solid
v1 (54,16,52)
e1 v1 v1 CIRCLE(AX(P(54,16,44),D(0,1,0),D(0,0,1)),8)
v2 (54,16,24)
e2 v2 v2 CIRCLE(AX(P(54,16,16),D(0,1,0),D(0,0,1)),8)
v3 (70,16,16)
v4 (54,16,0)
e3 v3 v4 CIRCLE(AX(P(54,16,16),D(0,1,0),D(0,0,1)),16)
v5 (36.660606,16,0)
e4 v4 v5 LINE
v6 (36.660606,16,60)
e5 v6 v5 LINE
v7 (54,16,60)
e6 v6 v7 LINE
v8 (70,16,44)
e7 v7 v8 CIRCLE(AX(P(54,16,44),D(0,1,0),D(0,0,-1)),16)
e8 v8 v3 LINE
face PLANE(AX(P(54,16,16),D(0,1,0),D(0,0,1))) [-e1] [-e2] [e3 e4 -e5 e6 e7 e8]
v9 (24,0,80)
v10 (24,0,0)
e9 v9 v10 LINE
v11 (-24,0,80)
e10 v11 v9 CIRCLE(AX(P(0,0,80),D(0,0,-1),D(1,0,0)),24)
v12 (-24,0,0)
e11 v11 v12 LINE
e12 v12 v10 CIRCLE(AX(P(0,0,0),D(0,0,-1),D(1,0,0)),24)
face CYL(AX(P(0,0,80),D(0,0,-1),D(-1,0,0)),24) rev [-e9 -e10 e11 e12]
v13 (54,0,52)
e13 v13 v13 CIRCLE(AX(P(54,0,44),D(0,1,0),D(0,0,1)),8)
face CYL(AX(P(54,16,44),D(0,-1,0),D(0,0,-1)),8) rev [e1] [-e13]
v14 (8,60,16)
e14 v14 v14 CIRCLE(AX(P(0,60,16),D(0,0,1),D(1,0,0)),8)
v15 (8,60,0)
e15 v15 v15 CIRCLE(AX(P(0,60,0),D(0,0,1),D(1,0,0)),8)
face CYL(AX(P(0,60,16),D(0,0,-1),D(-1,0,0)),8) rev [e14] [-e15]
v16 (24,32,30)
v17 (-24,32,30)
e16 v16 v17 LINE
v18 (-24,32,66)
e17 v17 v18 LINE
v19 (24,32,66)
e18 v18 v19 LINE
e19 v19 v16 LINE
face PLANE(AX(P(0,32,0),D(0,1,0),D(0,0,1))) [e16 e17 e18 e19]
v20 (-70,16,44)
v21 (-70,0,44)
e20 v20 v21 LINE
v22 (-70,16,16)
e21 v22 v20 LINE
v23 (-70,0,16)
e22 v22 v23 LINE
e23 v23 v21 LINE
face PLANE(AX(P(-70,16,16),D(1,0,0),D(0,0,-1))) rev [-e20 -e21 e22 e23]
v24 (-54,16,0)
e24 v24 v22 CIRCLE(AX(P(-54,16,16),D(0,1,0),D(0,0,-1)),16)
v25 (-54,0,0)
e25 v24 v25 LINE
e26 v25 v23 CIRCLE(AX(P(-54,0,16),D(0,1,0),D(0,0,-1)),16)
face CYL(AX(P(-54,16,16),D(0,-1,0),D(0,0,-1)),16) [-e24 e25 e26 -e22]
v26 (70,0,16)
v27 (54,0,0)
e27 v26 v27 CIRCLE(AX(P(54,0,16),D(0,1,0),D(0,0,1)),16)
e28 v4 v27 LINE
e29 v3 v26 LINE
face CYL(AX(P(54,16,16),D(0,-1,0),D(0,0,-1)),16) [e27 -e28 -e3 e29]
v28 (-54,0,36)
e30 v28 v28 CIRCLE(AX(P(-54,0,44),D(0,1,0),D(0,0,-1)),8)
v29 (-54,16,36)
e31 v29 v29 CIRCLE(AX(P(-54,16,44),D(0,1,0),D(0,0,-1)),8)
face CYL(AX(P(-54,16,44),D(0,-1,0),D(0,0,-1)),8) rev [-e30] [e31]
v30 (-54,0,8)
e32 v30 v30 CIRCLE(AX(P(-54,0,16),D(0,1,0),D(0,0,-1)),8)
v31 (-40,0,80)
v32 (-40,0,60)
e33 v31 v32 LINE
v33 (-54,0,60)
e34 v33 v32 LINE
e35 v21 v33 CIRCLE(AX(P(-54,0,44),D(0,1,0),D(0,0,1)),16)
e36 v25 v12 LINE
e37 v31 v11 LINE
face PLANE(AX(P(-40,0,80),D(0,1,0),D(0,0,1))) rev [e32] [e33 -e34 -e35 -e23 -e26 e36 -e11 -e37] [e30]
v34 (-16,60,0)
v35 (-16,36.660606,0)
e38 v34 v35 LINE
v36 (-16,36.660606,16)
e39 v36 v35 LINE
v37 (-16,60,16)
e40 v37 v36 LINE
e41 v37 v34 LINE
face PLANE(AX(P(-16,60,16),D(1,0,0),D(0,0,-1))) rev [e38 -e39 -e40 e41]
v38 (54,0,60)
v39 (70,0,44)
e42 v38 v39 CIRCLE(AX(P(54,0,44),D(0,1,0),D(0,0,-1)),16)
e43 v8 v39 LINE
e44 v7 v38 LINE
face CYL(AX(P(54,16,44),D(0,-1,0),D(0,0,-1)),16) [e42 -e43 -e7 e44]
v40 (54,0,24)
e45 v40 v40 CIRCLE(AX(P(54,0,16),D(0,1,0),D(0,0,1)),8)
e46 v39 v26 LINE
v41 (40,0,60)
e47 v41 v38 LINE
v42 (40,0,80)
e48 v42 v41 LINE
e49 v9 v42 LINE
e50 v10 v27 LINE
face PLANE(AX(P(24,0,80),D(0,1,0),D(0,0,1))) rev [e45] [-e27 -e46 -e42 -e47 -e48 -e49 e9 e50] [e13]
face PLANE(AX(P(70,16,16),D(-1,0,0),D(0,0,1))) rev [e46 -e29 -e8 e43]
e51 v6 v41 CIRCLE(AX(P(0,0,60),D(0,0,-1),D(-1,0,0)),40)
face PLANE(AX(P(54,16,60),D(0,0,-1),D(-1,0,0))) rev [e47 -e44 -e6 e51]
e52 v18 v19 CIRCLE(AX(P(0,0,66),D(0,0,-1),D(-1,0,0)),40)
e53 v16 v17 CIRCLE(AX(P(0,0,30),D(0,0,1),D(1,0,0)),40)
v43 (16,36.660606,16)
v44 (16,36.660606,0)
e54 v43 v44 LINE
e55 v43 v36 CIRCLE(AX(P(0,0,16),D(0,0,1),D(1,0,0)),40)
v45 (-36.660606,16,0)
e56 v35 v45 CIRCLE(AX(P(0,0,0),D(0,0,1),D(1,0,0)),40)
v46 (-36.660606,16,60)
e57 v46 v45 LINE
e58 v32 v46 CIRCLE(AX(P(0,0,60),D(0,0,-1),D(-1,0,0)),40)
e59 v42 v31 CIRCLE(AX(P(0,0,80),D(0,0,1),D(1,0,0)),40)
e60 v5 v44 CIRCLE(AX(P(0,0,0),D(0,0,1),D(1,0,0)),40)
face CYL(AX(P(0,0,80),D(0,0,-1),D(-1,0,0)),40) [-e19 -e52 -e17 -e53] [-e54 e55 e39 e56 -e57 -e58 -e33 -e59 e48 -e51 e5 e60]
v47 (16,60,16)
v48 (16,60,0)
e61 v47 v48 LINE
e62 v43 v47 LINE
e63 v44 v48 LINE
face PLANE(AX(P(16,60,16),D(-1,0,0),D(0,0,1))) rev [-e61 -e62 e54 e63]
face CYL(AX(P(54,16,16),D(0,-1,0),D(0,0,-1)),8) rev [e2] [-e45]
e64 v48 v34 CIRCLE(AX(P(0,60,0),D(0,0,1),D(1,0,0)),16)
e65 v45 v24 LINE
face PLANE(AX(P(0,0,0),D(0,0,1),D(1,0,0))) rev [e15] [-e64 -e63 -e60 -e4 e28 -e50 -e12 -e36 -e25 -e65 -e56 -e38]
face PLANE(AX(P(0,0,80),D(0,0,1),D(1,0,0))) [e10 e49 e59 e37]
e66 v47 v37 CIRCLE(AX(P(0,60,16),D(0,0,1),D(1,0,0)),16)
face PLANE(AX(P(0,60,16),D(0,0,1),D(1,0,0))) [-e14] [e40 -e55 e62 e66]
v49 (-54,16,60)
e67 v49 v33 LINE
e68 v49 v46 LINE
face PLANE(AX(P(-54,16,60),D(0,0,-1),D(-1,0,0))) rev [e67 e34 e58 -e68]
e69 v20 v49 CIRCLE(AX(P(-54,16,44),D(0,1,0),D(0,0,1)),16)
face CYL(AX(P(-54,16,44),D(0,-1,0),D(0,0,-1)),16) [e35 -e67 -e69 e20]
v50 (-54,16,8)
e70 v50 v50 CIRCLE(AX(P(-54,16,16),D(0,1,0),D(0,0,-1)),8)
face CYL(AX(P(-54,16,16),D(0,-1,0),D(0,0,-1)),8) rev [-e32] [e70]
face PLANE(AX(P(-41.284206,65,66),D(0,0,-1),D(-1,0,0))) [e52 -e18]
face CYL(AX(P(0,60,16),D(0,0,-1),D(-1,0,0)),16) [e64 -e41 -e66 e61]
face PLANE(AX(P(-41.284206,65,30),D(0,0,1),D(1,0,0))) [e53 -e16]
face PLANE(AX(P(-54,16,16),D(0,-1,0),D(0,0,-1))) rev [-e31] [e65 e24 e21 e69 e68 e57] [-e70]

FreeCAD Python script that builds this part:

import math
import FreeCAD as App
import Part
import Sketcher
Q = App.Units.Quantity

doc = App.newDocument("Part")
body = doc.addObject("PartDesign::Body", "Body")

# Sketch on XY plane
sketch1 = body.newObject("Sketcher::SketchObject", "Sketch")
sketch1.AttachmentSupport = (doc.getObject("XY_Plane"), [""])
sketch1.MapMode = "FlatFace"
sketch1.addGeometry(Part.LineSegment(App.Vector(-40, 0, 0), App.Vector(-24, 0, 0)), False)
sketch1.addGeometry(Part.ArcOfCircle(Part.Circle(App.Vector(0, 0, 0), App.Vector(0, 0, 1), 24), math.radians(0), math.radians(180)), False)
sketch1.addGeometry(Part.LineSegment(App.Vector(24, 0, 0), App.Vector(40, 0, 0)), False)
sketch1.addGeometry(Part.ArcOfCircle(Part.Circle(App.Vector(0, 0, 0), App.Vector(0, 0, 1), 40), math.radians(0), math.radians(180)), False)
sketch1.addConstraint(Sketcher.Constraint("Coincident", 0, 2, 1, 2))
sketch1.addConstraint(Sketcher.Constraint("Coincident", 1, 1, 2, 1))
sketch1.addConstraint(Sketcher.Constraint("Coincident", 2, 2, 3, 1))
sketch1.addConstraint(Sketcher.Constraint("Coincident", 3, 2, 0, 1))
sketch1.addConstraint(Sketcher.Constraint("Horizontal", 0))
sketch1.addConstraint(Sketcher.Constraint("Horizontal", 2))
sketch1.addConstraint(Sketcher.Constraint("Coincident", 1, 3, -1, 1))
sketch1.addConstraint(Sketcher.Constraint("Coincident", 3, 3, -1, 1))
sketch1.addConstraint(Sketcher.Constraint("PointOnObject", 0, 2, -1))
sketch1.addConstraint(Sketcher.Constraint("PointOnObject", 1, 1, -1))
sketch1.addConstraint(Sketcher.Constraint("Radius", 1, Q("24 mm")))
sketch1.addConstraint(Sketcher.Constraint("Radius", 3, Q("40 mm")))
pad1 = body.newObject("PartDesign::Pad", "Pad")
pad1.Profile = sketch1
pad1.Length = 80

# Sketch on XZ plane
sketch2 = body.newObject("Sketcher::SketchObject", "Sketch001")
sketch2.AttachmentSupport = (doc.getObject("XZ_Plane"), [""])
sketch2.MapMode = "FlatFace"
sketch2.addGeometry(Part.LineSegment(App.Vector(54, 0, 0), App.Vector(33, 0, 0)), False)
sketch2.addGeometry(Part.LineSegment(App.Vector(33, 0, 0), App.Vector(33, 60, 0)), False)
sketch2.addGeometry(Part.LineSegment(App.Vector(33, 60, 0), App.Vector(54, 60, 0)), False)
sketch2.addGeometry(Part.ArcOfCircle(Part.Circle(App.Vector(54, 44, 0), App.Vector(0, 0, 1), 16), math.radians(0), math.radians(90)), False)
sketch2.addGeometry(Part.LineSegment(App.Vector(70, 44, 0), App.Vector(70, 16, 0)), False)
sketch2.addGeometry(Part.ArcOfCircle(Part.Circle(App.Vector(54, 16, 0), App.Vector(0, 0, 1), 16), math.radians(-90), math.radians(0)), False)
sketch2.addGeometry(Part.Circle(App.Vector(54, 44, 0), App.Vector(0, 0, 1), 8), False)
sketch2.addGeometry(Part.Circle(App.Vector(54, 16, 0), App.Vector(0, 0, 1), 8), False)
sketch2.addGeometry(Part.LineSegment(App.Vector(-33, 60, 0), App.Vector(-33, 0, 0)), False)
sketch2.addGeometry(Part.LineSegment(App.Vector(-33, 0, 0), App.Vector(-54, 0, 0)), False)
sketch2.addGeometry(Part.ArcOfCircle(Part.Circle(App.Vector(-54, 16, 0), App.Vector(0, 0, 1), 16), math.radians(180), math.radians(270)), False)
sketch2.addGeometry(Part.LineSegment(App.Vector(-70, 16, 0), App.Vector(-70, 44, 0)), False)
sketch2.addGeometry(Part.ArcOfCircle(Part.Circle(App.Vector(-54, 44, 0), App.Vector(0, 0, 1), 16), math.radians(90), math.radians(180)), False)
sketch2.addGeometry(Part.LineSegment(App.Vector(-54, 60, 0), App.Vector(-33, 60, 0)), False)
sketch2.addGeometry(Part.Circle(App.Vector(-54, 44, 0), App.Vector(0, 0, 1), 8), False)
sketch2.addGeometry(Part.Circle(App.Vector(-54, 16, 0), App.Vector(0, 0, 1), 8), False)
sketch2.addConstraint(Sketcher.Constraint("Coincident", 0, 2, 1, 1))
sketch2.addConstraint(Sketcher.Constraint("Coincident", 1, 2, 2, 1))
sketch2.addConstraint(Sketcher.Constraint("Tangent", 2, 2, 3, 2))
sketch2.addConstraint(Sketcher.Constraint("Tangent", 3, 1, 4, 1))
sketch2.addConstraint(Sketcher.Constraint("Tangent", 4, 2, 5, 2))
sketch2.addConstraint(Sketcher.Constraint("Tangent", 5, 1, 0, 1))
sketch2.addConstraint(Sketcher.Constraint("Coincident", 8, 2, 9, 1))
sketch2.addConstraint(Sketcher.Constraint("Tangent", 9, 2, 10, 2))
sketch2.addConstraint(Sketcher.Constraint("Tangent", 10, 1, 11, 1))
sketch2.addConstraint(Sketcher.Constraint("Tangent", 11, 2, 12, 2))
sketch2.addConstraint(Sketcher.Constraint("Tangent", 12, 1, 13, 1))
sketch2.addConstraint(Sketcher.Constraint("Coincident", 13, 2, 8, 1))
sketch2.addConstraint(Sketcher.Constraint("Horizontal", 0))
sketch2.addConstraint(Sketcher.Constraint("Vertical", 1))
sketch2.addConstraint(Sketcher.Constraint("Horizontal", 2))
sketch2.addConstraint(Sketcher.Constraint("Vertical", 4))
sketch2.addConstraint(Sketcher.Constraint("Vertical", 8))
sketch2.addConstraint(Sketcher.Constraint("Horizontal", 9))
sketch2.addConstraint(Sketcher.Constraint("Vertical", 11))
sketch2.addConstraint(Sketcher.Constraint("Horizontal", 13))
sketch2.addConstraint(Sketcher.Constraint("Coincident", 6, 3, 3, 3))
sketch2.addConstraint(Sketcher.Constraint("Coincident", 7, 3, 5, 3))
sketch2.addConstraint(Sketcher.Constraint("Coincident", 14, 3, 12, 3))
sketch2.addConstraint(Sketcher.Constraint("Coincident", 15, 3, 10, 3))
sketch2.addConstraint(Sketcher.Constraint("Equal", 3, 5))
sketch2.addConstraint(Sketcher.Constraint("Equal", 6, 7))
sketch2.addConstraint(Sketcher.Constraint("Equal", 5, 10))
sketch2.addConstraint(Sketcher.Constraint("Equal", 10, 12))
sketch2.addConstraint(Sketcher.Constraint("Equal", 7, 14))
sketch2.addConstraint(Sketcher.Constraint("Equal", 14, 15))
sketch2.addConstraint(Sketcher.Constraint("Symmetric", 0, 2, 8, 2, -1, 1))
sketch2.addConstraint(Sketcher.Constraint("Symmetric", 5, 3, 10, 3, -2))
sketch2.addConstraint(Sketcher.Constraint("Horizontal", 6, 3, 12, 3))
sketch2.addConstraint(Sketcher.Constraint("Diameter", 6, Q("16 mm")))
sketch2.addConstraint(Sketcher.Constraint("Radius", 3, Q("16 mm")))
sketch2.addConstraint(Sketcher.Constraint("DistanceY", 1, 1, 1, 2, Q("60 mm")))
sketch2.addConstraint(Sketcher.Constraint("DistanceX", -1, 1, 3, 3, Q("54 mm")))
sketch2.addConstraint(Sketcher.Constraint("DistanceX", 0, 2, 0, 1, Q("21.04827 mm")))
pad2 = body.newObject("PartDesign::Pad", "Pad001")
pad2.Profile = sketch2
pad2.Length = 16
pad2.Reversed = True

# Sketch on XZ plane
sketch3 = body.newObject("Sketcher::SketchObject", "Sketch002")
sketch3.AttachmentSupport = (doc.getObject("XZ_Plane"), [""])
sketch3.MapMode = "FlatFace"
sketch3.AttachmentOffset = App.Placement(App.Vector(0, 0, -32), App.Rotation())
sketch3.addGeometry(Part.LineSegment(App.Vector(-41, 30, 0), App.Vector(-41, 66, 0)), False)
sketch3.addGeometry(Part.LineSegment(App.Vector(-41, 66, 0), App.Vector(43, 66, 0)), False)
sketch3.addGeometry(Part.LineSegment(App.Vector(43, 66, 0), App.Vector(43, 30, 0)), False)
sketch3.addGeometry(Part.LineSegment(App.Vector(43, 30, 0), App.Vector(-41, 30, 0)), False)
sketch3.addConstraint(Sketcher.Constraint("Coincident", 0, 2, 1, 1))
sketch3.addConstraint(Sketcher.Constraint("Coincident", 1, 2, 2, 1))
sketch3.addConstraint(Sketcher.Constraint("Coincident", 2, 2, 3, 1))
sketch3.addConstraint(Sketcher.Constraint("Coincident", 3, 2, 0, 1))
sketch3.addConstraint(Sketcher.Constraint("Vertical", 0))
sketch3.addConstraint(Sketcher.Constraint("Horizontal", 1))
sketch3.addConstraint(Sketcher.Constraint("Vertical", 2))
sketch3.addConstraint(Sketcher.Constraint("Horizontal", 3))
sketch3.addConstraint(Sketcher.Constraint("DistanceY", 0, 1, 0, 2, Q("36 mm")))
sketch3.addConstraint(Sketcher.Constraint("DistanceY", -1, 1, 0, 2, Q("66 mm")))
sketch3.addConstraint(Sketcher.Constraint("DistanceX", 1, 1, 1, 2, Q("84.547176 mm")))
sketch3.addConstraint(Sketcher.Constraint("DistanceX", -1, 1, 1, 2, Q("43.26297 mm")))
pocket1 = body.newObject("PartDesign::Pocket", "Pocket")
pocket1.Profile = sketch3
pocket1.Length = 33

# Sketch on XY plane
sketch4 = body.newObject("Sketcher::SketchObject", "Sketch003")
sketch4.AttachmentSupport = (doc.getObject("XY_Plane"), [""])
sketch4.MapMode = "FlatFace"
sketch4.addGeometry(Part.LineSegment(App.Vector(-16, 60, 0), App.Vector(-16, 37, 0)), False)
sketch4.addGeometry(Part.LineSegment(App.Vector(-16, 37, 0), App.Vector(16, 37, 0)), False)
sketch4.addGeometry(Part.LineSegment(App.Vector(16, 37, 0), App.Vector(16, 60, 0)), False)
sketch4.addGeometry(Part.ArcOfCircle(Part.Circle(App.Vector(0, 60, 0), App.Vector(0, 0, 1), 16), math.radians(0), math.radians(180)), False)
sketch4.addGeometry(Part.Circle(App.Vector(0, 60, 0), App.Vector(0, 0, 1), 8), False)
sketch4.addConstraint(Sketcher.Constraint("Coincident", 0, 2, 1, 1))
sketch4.addConstraint(Sketcher.Constraint("Coincident", 1, 2, 2, 1))
sketch4.addConstraint(Sketcher.Constraint("Tangent", 2, 2, 3, 1))
sketch4.addConstraint(Sketcher.Constraint("Tangent", 3, 2, 0, 1))
sketch4.addConstraint(Sketcher.Constraint("Vertical", 0))
sketch4.addConstraint(Sketcher.Constraint("Horizontal", 1))
sketch4.addConstraint(Sketcher.Constraint("Vertical", 2))
sketch4.addConstraint(Sketcher.Constraint("Coincident", 4, 3, 3, 3))
sketch4.addConstraint(Sketcher.Constraint("PointOnObject", 3, 3, -2))
sketch4.addConstraint(Sketcher.Constraint("Diameter", 4, Q("16 mm")))
sketch4.addConstraint(Sketcher.Constraint("Radius", 3, Q("16 mm")))
sketch4.addConstraint(Sketcher.Constraint("DistanceY", -1, 1, 3, 3, Q("60 mm")))
sketch4.addConstraint(Sketcher.Constraint("DistanceY", 0, 2, 0, 1, Q("23.339394 mm")))
pad3 = body.newObject("PartDesign::Pad", "Pad002")
pad3.Profile = sketch4
pad3.Length = 16

doc.recompute()
